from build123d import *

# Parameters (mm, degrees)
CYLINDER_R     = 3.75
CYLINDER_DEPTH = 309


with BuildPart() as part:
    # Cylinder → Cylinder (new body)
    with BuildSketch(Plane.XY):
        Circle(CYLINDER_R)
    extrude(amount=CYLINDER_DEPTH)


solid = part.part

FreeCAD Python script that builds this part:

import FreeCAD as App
import Part
import Sketcher

V = App.Vector
Q = App.Units.Quantity

doc = App.newDocument("Part")
body = doc.addObject("PartDesign::Body", "Body")

sketch1 = doc.addObject("Sketcher::SketchObject", "Sketch")
body.addObject(sketch1)
sketch1.AttachmentSupport = (doc.XY_Plane, [""])
sketch1.MapMode = "FlatFace"
sketch1.addGeometry(Part.Circle(V(0, 0, 0), V(0, 0, 1), 3.75), False)
sketch1.addConstraint([
    Sketcher.Constraint("Coincident", 0, 3, -1, 1),
    Sketcher.Constraint("Diameter", 0, Q("7.5 mm")),
])
pad1 = doc.addObject("PartDesign::Pad", "Pad")
body.addObject(pad1)
pad1.Profile = sketch1
pad1.Length = 309

doc.recompute()
